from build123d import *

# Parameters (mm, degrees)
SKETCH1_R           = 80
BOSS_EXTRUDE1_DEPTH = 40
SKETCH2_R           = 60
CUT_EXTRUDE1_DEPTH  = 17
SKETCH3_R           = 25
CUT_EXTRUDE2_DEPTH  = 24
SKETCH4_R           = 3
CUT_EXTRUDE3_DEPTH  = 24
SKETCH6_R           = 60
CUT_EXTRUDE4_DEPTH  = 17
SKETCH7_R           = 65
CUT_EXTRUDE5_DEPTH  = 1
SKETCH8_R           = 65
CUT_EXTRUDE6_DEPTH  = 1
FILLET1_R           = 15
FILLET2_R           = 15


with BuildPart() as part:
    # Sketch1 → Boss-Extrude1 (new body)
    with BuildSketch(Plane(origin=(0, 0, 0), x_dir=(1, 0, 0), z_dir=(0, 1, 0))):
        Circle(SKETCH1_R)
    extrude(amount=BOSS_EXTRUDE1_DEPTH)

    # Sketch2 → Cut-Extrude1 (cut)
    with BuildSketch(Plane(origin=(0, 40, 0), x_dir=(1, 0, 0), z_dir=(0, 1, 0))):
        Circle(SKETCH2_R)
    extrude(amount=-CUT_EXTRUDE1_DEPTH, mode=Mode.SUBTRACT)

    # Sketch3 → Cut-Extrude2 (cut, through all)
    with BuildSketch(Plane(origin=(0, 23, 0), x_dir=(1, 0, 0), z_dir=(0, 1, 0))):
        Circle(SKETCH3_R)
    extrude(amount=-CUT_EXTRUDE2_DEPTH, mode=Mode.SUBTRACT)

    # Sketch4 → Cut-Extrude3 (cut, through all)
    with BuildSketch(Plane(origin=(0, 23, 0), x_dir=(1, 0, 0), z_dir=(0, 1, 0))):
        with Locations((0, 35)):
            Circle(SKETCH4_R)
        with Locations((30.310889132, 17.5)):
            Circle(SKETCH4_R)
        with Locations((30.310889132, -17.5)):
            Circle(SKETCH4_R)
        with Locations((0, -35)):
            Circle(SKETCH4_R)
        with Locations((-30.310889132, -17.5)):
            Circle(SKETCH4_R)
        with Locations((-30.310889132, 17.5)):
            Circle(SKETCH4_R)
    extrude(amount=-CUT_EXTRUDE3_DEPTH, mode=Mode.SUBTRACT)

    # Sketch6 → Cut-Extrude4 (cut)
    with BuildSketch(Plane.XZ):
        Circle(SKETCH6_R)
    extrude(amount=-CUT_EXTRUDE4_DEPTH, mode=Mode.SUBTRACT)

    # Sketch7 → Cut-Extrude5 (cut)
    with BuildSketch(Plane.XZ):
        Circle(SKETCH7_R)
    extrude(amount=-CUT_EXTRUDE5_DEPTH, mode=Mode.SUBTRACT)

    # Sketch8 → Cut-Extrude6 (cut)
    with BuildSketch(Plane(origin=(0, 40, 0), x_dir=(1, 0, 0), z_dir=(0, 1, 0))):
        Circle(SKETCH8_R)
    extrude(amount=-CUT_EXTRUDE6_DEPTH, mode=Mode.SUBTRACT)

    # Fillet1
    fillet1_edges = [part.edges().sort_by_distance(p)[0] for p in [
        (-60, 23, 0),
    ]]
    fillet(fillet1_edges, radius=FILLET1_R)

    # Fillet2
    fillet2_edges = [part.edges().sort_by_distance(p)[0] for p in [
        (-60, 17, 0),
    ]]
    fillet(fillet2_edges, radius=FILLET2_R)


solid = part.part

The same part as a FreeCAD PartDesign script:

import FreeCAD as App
import Part
import Sketcher


def edges_at(feature, points):
    """Names of the edges that pass closest to the given points."""
    edges = feature.Shape.Edges
    near = lambda p: min(range(len(edges)), key=lambda i: edges[i].distToShape(Part.Vertex(*p))[0])
    return sorted({f"Edge{near(p) + 1}" for p in points})

doc = App.newDocument("Part")
params = doc.addObject("Spreadsheet::Sheet", "Params")
for row, (alias, value) in enumerate([
    ("sketch1_diameter", "160 mm"),
    ("pad1_length", "40 mm"),
    ("sketch2_diameter", "120 mm"),
    ("pocket1_length", "17 mm"),
    ("sketch3_diameter", "50 mm"),
    ("sketch4_diameter", "6 mm"),
    ("sketch5_diameter", "120 mm"),
    ("pocket4_length", "17 mm"),
    ("sketch6_diameter", "130 mm"),
    ("pocket5_length", "1 mm"),
    ("sketch7_diameter", "130 mm"),
    ("pocket6_length", "1 mm"),
    ("fillet_radius", "15 mm"),
    ("fillet2_radius", "15 mm"),
], start=1):
    params.set(f"A{row}", alias)
    params.set(f"B{row}", "=" + value)
    params.setAlias(f"B{row}", alias)

body = doc.addObject("PartDesign::Body", "Body")

sketch1 = body.newObject("Sketcher::SketchObject", "Sketch")
sketch1.AttachmentSupport = (doc.getObject("XZ_Plane"), [""])
sketch1.MapMode = "FlatFace"
sketch1.addGeometry(Part.Circle(App.Vector(0, 0, 0), App.Vector(0, 0, 1), 80), False)
sketch1.addConstraint([
    Sketcher.Constraint("Coincident", 0, 3, -1, 1),
    Sketcher.Constraint("Diameter", 0, 160.0),
])
sketch1.setExpression("Constraints[1]", "Params.sketch1_diameter")
pad1 = body.newObject("PartDesign::Pad", "Pad")
pad1.Profile = sketch1
pad1.setExpression("Length", "Params.pad1_length")
pad1.Reversed = True

sketch2 = body.newObject("Sketcher::SketchObject", "Sketch001")
sketch2.AttachmentSupport = (doc.getObject("XZ_Plane"), [""])
sketch2.MapMode = "FlatFace"
sketch2.AttachmentOffset = App.Placement(App.Vector(0, 0, -40), App.Rotation())
sketch2.addGeometry(Part.Circle(App.Vector(0, 0, 0), App.Vector(0, 0, 1), 60), False)
sketch2.addConstraint([
    Sketcher.Constraint("Coincident", 0, 3, -1, 1),
    Sketcher.Constraint("Diameter", 0, 120.0),
])
sketch2.setExpression("Constraints[1]", "Params.sketch2_diameter")
pocket1 = body.newObject("PartDesign::Pocket", "Pocket")
pocket1.Profile = sketch2
pocket1.setExpression("Length", "Params.pocket1_length")
pocket1.Reversed = True

sketch3 = body.newObject("Sketcher::SketchObject", "Sketch002")
sketch3.AttachmentSupport = (doc.getObject("XZ_Plane"), [""])
sketch3.MapMode = "FlatFace"
sketch3.AttachmentOffset = App.Placement(App.Vector(0, 0, -23), App.Rotation())
sketch3.addGeometry(Part.Circle(App.Vector(0, 0, 0), App.Vector(0, 0, 1), 25), False)
sketch3.addConstraint([
    Sketcher.Constraint("Coincident", 0, 3, -1, 1),
    Sketcher.Constraint("Diameter", 0, 50.0),
])
sketch3.setExpression("Constraints[1]", "Params.sketch3_diameter")
pocket2 = body.newObject("PartDesign::Pocket", "Pocket001")
pocket2.Profile = sketch3
pocket2.Type = "ThroughAll"
pocket2.Reversed = True

sketch4 = body.newObject("Sketcher::SketchObject", "Sketch003")
sketch4.AttachmentSupport = (doc.getObject("XZ_Plane"), [""])
sketch4.MapMode = "FlatFace"
sketch4.AttachmentOffset = App.Placement(App.Vector(0, 0, -23), App.Rotation())
sketch4.addGeometry([
    Part.Circle(App.Vector(0, -35, 0), App.Vector(0, 0, 1), 3),
    Part.Circle(App.Vector(30.310889, -17.5, 0), App.Vector(0, 0, 1), 3),
    Part.Circle(App.Vector(30.310889, 17.5, 0), App.Vector(0, 0, 1), 3),
    Part.Circle(App.Vector(0, 35, 0), App.Vector(0, 0, 1), 3),
    Part.Circle(App.Vector(-30.310889, 17.5, 0), App.Vector(0, 0, 1), 3),
    Part.Circle(App.Vector(-30.310889, -17.5, 0), App.Vector(0, 0, 1), 3),
], False)
sketch4.addConstraint([
    Sketcher.Constraint("Equal", 0, 1),
    Sketcher.Constraint("Equal", 1, 2),
    Sketcher.Constraint("Equal", 2, 3),
    Sketcher.Constraint("Equal", 3, 4),
    Sketcher.Constraint("Equal", 4, 5),
    Sketcher.Constraint("Symmetric", 0, 3, 3, 3, -1, 1),
    Sketcher.Constraint("Symmetric", 1, 3, 4, 3, -1, 1),
    Sketcher.Constraint("Symmetric", 2, 3, 5, 3, -1, 1),
    Sketcher.Constraint("Symmetric", 2, 3, 4, 3, -2),
    Sketcher.Constraint("PointOnObject", 0, 3, -2),
    Sketcher.Constraint("Diameter", 0, 6.0),
    Sketcher.Constraint("DistanceY", 0, 3, -1, 1, 35.0),
    Sketcher.Constraint("DistanceY", 1, 3, 2, 3, 35.0),
    Sketcher.Constraint("DistanceX", -1, 1, 1, 3, 30.310889),
])
sketch4.setExpression("Constraints[10]", "Params.sketch4_diameter")
pocket3 = body.newObject("PartDesign::Pocket", "Pocket002")
pocket3.Profile = sketch4
pocket3.Type = "ThroughAll"
pocket3.Reversed = True

sketch5 = body.newObject("Sketcher::SketchObject", "Sketch004")
sketch5.AttachmentSupport = (doc.getObject("XZ_Plane"), [""])
sketch5.MapMode = "FlatFace"
sketch5.addGeometry(Part.Circle(App.Vector(0, 0, 0), App.Vector(0, 0, 1), 60), False)
sketch5.addConstraint([
    Sketcher.Constraint("Coincident", 0, 3, -1, 1),
    Sketcher.Constraint("Diameter", 0, 120.0),
])
sketch5.setExpression("Constraints[1]", "Params.sketch5_diameter")
pocket4 = body.newObject("PartDesign::Pocket", "Pocket003")
pocket4.Profile = sketch5
pocket4.setExpression("Length", "Params.pocket4_length")

sketch6 = body.newObject("Sketcher::SketchObject", "Sketch005")
sketch6.AttachmentSupport = (doc.getObject("XZ_Plane"), [""])
sketch6.MapMode = "FlatFace"
sketch6.addGeometry(Part.Circle(App.Vector(0, 0, 0), App.Vector(0, 0, 1), 65), False)
sketch6.addConstraint([
    Sketcher.Constraint("Coincident", 0, 3, -1, 1),
    Sketcher.Constraint("Diameter", 0, 130.0),
])
sketch6.setExpression("Constraints[1]", "Params.sketch6_diameter")
pocket5 = body.newObject("PartDesign::Pocket", "Pocket004")
pocket5.Profile = sketch6
pocket5.setExpression("Length", "Params.pocket5_length")

sketch7 = body.newObject("Sketcher::SketchObject", "Sketch006")
sketch7.AttachmentSupport = (doc.getObject("XZ_Plane"), [""])
sketch7.MapMode = "FlatFace"
sketch7.AttachmentOffset = App.Placement(App.Vector(0, 0, -40), App.Rotation())
sketch7.addGeometry(Part.Circle(App.Vector(0, 0, 0), App.Vector(0, 0, 1), 65), False)
sketch7.addConstraint([
    Sketcher.Constraint("Coincident", 0, 3, -1, 1),
    Sketcher.Constraint("Diameter", 0, 130.0),
])
sketch7.setExpression("Constraints[1]", "Params.sketch7_diameter")
pocket6 = body.newObject("PartDesign::Pocket", "Pocket005")
pocket6.Profile = sketch7
pocket6.setExpression("Length", "Params.pocket6_length")
pocket6.Reversed = True
doc.recompute()

fillet = body.newObject("PartDesign::Fillet", "Fillet")
fillet.Base = (pocket6, edges_at(pocket6, [(-60, 23, 0)]))
fillet.setExpression("Radius", "Params.fillet_radius")
doc.recompute()

fillet2 = body.newObject("PartDesign::Fillet", "Fillet001")
fillet2.Base = (fillet, edges_at(fillet, [(-60, 17, 0)]))
fillet2.setExpression("Radius", "Params.fillet2_radius")

doc.recompute()
